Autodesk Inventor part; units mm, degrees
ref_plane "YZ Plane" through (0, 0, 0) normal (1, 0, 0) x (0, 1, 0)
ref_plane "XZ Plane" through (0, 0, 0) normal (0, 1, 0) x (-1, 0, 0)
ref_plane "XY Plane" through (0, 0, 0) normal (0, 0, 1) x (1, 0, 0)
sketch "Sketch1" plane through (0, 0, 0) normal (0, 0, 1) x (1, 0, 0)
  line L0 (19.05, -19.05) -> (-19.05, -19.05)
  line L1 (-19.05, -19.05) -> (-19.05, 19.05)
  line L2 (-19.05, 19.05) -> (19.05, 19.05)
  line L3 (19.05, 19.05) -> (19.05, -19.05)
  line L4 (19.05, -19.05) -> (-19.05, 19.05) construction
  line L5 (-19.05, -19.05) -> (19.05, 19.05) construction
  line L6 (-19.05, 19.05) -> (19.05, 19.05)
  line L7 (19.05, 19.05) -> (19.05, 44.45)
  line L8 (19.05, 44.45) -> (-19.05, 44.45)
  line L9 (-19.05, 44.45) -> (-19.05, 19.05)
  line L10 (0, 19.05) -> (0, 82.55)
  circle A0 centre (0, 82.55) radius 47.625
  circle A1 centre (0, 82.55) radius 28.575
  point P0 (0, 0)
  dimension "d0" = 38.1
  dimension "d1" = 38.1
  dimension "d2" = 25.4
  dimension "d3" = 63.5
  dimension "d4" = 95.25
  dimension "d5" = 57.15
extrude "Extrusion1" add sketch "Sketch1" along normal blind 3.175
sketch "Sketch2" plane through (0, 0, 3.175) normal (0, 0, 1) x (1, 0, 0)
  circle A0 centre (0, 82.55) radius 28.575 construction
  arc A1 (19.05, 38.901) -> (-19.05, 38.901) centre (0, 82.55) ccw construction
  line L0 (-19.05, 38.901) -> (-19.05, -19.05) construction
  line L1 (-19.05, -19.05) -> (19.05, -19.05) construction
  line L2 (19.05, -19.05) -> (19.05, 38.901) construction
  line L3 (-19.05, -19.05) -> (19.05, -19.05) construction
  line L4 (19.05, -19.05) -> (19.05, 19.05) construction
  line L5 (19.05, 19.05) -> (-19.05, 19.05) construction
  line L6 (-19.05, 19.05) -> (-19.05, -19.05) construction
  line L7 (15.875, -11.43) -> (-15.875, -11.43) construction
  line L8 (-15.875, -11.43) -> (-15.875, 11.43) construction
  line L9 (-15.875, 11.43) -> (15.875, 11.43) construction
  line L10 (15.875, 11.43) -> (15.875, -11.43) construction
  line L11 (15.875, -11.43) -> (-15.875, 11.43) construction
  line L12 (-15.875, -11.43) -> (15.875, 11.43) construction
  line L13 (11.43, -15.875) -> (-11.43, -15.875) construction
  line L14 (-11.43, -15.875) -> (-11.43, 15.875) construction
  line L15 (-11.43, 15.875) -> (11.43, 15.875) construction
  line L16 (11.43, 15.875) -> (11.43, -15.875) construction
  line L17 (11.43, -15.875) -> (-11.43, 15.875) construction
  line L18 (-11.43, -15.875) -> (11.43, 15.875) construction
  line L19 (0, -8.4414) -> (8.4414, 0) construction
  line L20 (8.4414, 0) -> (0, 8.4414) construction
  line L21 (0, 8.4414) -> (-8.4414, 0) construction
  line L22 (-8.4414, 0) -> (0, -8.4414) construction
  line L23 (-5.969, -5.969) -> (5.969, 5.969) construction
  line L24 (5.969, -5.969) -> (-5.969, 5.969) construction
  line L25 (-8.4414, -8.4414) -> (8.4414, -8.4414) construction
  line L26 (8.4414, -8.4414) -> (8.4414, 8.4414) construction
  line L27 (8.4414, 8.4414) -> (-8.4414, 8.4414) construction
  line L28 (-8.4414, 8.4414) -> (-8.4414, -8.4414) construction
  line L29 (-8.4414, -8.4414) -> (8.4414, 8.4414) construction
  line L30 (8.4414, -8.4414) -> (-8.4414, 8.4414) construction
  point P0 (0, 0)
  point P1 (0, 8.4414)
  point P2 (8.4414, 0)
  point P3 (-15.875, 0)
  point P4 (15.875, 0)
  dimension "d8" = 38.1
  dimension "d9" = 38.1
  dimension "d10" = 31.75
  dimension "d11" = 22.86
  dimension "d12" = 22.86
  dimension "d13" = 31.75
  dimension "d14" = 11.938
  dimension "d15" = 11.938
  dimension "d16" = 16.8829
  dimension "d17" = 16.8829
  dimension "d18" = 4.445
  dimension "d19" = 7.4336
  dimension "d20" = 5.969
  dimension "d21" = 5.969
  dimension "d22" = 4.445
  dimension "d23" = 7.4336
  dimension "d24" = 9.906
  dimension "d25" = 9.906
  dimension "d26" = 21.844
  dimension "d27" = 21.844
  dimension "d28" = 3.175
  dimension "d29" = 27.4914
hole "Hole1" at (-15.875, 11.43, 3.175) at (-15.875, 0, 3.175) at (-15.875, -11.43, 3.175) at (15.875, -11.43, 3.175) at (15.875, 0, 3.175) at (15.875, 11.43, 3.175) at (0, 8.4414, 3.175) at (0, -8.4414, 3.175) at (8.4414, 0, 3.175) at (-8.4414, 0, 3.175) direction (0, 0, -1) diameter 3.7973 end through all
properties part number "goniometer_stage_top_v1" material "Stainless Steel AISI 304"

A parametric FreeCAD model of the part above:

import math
import FreeCAD as App
import Part
import Sketcher

V = App.Vector
Q = App.Units.Quantity

doc = App.newDocument("Part")
params = doc.addObject("Spreadsheet::Sheet", "Params")
for row, (alias, value) in enumerate([
    ("sketch1_diameter", "2.25 in"),
    ("sketch1_width", "1.5 in"),
    ("sketch1_radius", "1.875 in"),
    ("pad1_length", "0.125 in"),
    ("hole_diameter", "0.1495 in"),
], start=1):
    params.set(f"A{row}", alias)
    params.set(f"B{row}", "=" + value)
    params.setAlias(f"B{row}", alias)

body = doc.addObject("PartDesign::Body", "Body")

sketch1 = doc.addObject("Sketcher::SketchObject", "Sketch")
body.addObject(sketch1)
sketch1.AttachmentSupport = (doc.XY_Plane, [""])
sketch1.MapMode = "FlatFace"
sketch1.addGeometry([
    Part.LineSegment(V(-19, -19, 0), V(19, -19, 0)),
    Part.LineSegment(V(19, -19, 0), V(19, 39, 0)),
    Part.ArcOfCircle(Part.Circle(V(0, 83, 0), V(0, 0, 1), 48), math.radians(-66), math.radians(246)),
    Part.LineSegment(V(-19, 39, 0), V(-19, -19, 0)),
    Part.Circle(V(0, 83, 0), V(0, 0, 1), 29),
], False)
sketch1.addConstraint([
    Sketcher.Constraint("Coincident", 0, 2, 1, 1),
    Sketcher.Constraint("Coincident", 1, 2, 2, 1),
    Sketcher.Constraint("Coincident", 2, 2, 3, 1),
    Sketcher.Constraint("Coincident", 3, 2, 0, 1),
    Sketcher.Constraint("Horizontal", 0),
    Sketcher.Constraint("Vertical", 1),
    Sketcher.Constraint("Vertical", 3),
    Sketcher.Constraint("Coincident", 4, 3, 2, 3),
    Sketcher.Constraint("Symmetric", 1, 2, 2, 2, -2),
    Sketcher.Constraint("Diameter", 4, Q("2.25 in")),
    Sketcher.Constraint("DistanceX", 0, 1, 0, 2, Q("1.5 in")),
    Sketcher.Constraint("Radius", 2, Q("1.875 in")),
    Sketcher.Constraint("DistanceY", 0, 2, 2, 3, Q("4 in")),
    Sketcher.Constraint("DistanceY", -1, 1, 2, 3, Q("3.25 in")),
])
sketch1.setExpression("Constraints[9]", "Params.sketch1_diameter")
sketch1.setExpression("Constraints[10]", "Params.sketch1_width")
sketch1.setExpression("Constraints[11]", "Params.sketch1_radius")
pad1 = doc.addObject("PartDesign::Pad", "Pad")
body.addObject(pad1)
pad1.Profile = sketch1
pad1.setExpression("Length", "Params.pad1_length")

sketch2 = doc.addObject("Sketcher::SketchObject", "Sketch001")
body.addObject(sketch2)
sketch2.AttachmentSupport = (doc.XY_Plane, [""])
sketch2.MapMode = "FlatFace"
sketch2.AttachmentOffset = App.Placement(V(0, 0, 0.125 * 25.4), App.Rotation())
sketch2.addGeometry([
    Part.Circle(V(-15.9, 11.4, 0), V(0, 0, 1), 1.9),
    Part.Circle(V(-15.9, 0, 0), V(0, 0, 1), 1.9),
    Part.Circle(V(-15.9, -11.4, 0), V(0, 0, 1), 1.9),
    Part.Circle(V(15.9, -11.4, 0), V(0, 0, 1), 1.9),
    Part.Circle(V(15.9, 0, 0), V(0, 0, 1), 1.9),
    Part.Circle(V(15.9, 11.4, 0), V(0, 0, 1), 1.9),
    Part.Circle(V(0, 8.4, 0), V(0, 0, 1), 1.9),
    Part.Circle(V(0, -8.4, 0), V(0, 0, 1), 1.9),
    Part.Circle(V(8.4, 0, 0), V(0, 0, 1), 1.9),
    Part.Circle(V(-8.4, 0, 0), V(0, 0, 1), 1.9),
], False)
sketch2.addConstraint([
    Sketcher.Constraint("Equal", 0, 1),
    Sketcher.Constraint("Equal", 1, 2),
    Sketcher.Constraint("Equal", 2, 3),
    Sketcher.Constraint("Equal", 3, 4),
    Sketcher.Constraint("Equal", 4, 5),
    Sketcher.Constraint("Equal", 5, 6),
    Sketcher.Constraint("Equal", 6, 7),
    Sketcher.Constraint("Equal", 7, 8),
    Sketcher.Constraint("Equal", 8, 9),
    Sketcher.Constraint("Symmetric", 0, 3, 3, 3, -1, 1),
    Sketcher.Constraint("Symmetric", 1, 3, 4, 3, -1, 1),
    Sketcher.Constraint("Symmetric", 2, 3, 5, 3, -1, 1),
    Sketcher.Constraint("Symmetric", 6, 3, 7, 3, -1, 1),
    Sketcher.Constraint("Symmetric", 8, 3, 9, 3, -1, 1),
    Sketcher.Constraint("Symmetric", 2, 3, 3, 3, -2),
    Sketcher.Constraint("PointOnObject", 1, 3, -1),
    Sketcher.Constraint("PointOnObject", 6, 3, -2),
    Sketcher.Constraint("PointOnObject", 8, 3, -1),
    Sketcher.Constraint("Vertical", 0, 3, 1, 3),
    Sketcher.Constraint("Diameter", 0, Q("0.1495 in")),
    Sketcher.Constraint("DistanceY", 2, 3, 0, 3, Q("0.9 in")),
    Sketcher.Constraint("DistanceX", 2, 3, 3, 3, Q("1.25 in")),
    Sketcher.Constraint("DistanceY", -1, 1, 6, 3, Q("8.4414 mm")),
    Sketcher.Constraint("DistanceX", -1, 1, 8, 3, Q("8.4414 mm")),
])
doc.recompute()
hole = doc.addObject("PartDesign::Hole", "Hole")
body.addObject(hole)
hole.Profile = sketch2
hole.ThreadType = "None"
hole.setExpression("Diameter", "Params.hole_diameter")
hole.DepthType = "ThroughAll"

doc.recompute()
